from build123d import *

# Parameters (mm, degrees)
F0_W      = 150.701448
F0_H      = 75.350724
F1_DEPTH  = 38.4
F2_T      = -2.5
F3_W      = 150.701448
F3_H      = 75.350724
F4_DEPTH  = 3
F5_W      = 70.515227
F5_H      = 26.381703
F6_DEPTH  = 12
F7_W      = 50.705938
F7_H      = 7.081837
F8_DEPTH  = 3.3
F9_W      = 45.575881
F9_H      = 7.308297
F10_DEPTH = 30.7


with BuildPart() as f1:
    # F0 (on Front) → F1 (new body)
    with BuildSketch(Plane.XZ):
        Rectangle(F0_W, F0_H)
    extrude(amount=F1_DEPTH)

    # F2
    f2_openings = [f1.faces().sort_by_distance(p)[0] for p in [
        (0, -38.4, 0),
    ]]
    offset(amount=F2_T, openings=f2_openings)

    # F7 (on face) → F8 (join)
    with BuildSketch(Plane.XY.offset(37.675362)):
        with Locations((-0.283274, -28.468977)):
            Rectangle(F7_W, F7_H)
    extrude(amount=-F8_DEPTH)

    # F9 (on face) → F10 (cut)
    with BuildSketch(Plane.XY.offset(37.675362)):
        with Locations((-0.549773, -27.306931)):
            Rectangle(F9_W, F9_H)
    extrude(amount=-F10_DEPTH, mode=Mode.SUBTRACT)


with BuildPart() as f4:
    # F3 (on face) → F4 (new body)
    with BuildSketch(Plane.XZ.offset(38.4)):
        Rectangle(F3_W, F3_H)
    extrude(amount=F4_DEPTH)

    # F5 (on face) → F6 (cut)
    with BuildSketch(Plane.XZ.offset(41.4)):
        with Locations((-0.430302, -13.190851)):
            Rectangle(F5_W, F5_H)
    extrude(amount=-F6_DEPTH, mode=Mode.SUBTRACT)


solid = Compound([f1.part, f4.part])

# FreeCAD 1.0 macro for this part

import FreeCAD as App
import Part
import Sketcher
Q = App.Units.Quantity


def faces_at(feature, points):
    """Names of the faces that lie closest to the given points."""
    faces = feature.Shape.Faces
    near = lambda p: min(range(len(faces)), key=lambda i: faces[i].distToShape(Part.Vertex(*p))[0])
    return sorted({f"Face{near(p) + 1}" for p in points})

doc = App.newDocument("Part")
body = doc.addObject("PartDesign::Body", "Body")

# Sketch on XZ plane
sketch1 = doc.addObject("Sketcher::SketchObject", "Sketch")
body.addObject(sketch1)
sketch1.AttachmentSupport = (doc.XZ_Plane, [""])
sketch1.MapMode = "FlatFace"
sketch1.addGeometry(Part.LineSegment(App.Vector(-75.350724, 37.675362, 0), App.Vector(-75.350724, -37.675362, 0)), False)
sketch1.addGeometry(Part.LineSegment(App.Vector(-75.350724, -37.675362, 0), App.Vector(75.350724, -37.675362, 0)), False)
sketch1.addGeometry(Part.LineSegment(App.Vector(75.350724, -37.675362, 0), App.Vector(75.350724, 37.675362, 0)), False)
sketch1.addGeometry(Part.LineSegment(App.Vector(75.350724, 37.675362, 0), App.Vector(-75.350724, 37.675362, 0)), False)
sketch1.addConstraint(Sketcher.Constraint("Coincident", 0, 2, 1, 1))
sketch1.addConstraint(Sketcher.Constraint("Coincident", 1, 2, 2, 1))
sketch1.addConstraint(Sketcher.Constraint("Coincident", 2, 2, 3, 1))
sketch1.addConstraint(Sketcher.Constraint("Coincident", 3, 2, 0, 1))
sketch1.addConstraint(Sketcher.Constraint("Vertical", 0))
sketch1.addConstraint(Sketcher.Constraint("Horizontal", 1))
sketch1.addConstraint(Sketcher.Constraint("Vertical", 2))
sketch1.addConstraint(Sketcher.Constraint("Horizontal", 3))
sketch1.addConstraint(Sketcher.Constraint("Symmetric", 0, 2, 2, 2, -1, 1))
sketch1.addConstraint(Sketcher.Constraint("DistanceX", 1, 1, 1, 2, Q("150.701448 mm")))
sketch1.addConstraint(Sketcher.Constraint("DistanceY", 0, 2, 0, 1, Q("75.350724 mm")))
pad1 = doc.addObject("PartDesign::Pad", "Pad")
body.addObject(pad1)
pad1.Profile = sketch1
pad1.Length = 38.4
doc.recompute()

thickness = doc.addObject("PartDesign::Thickness", "Thickness")
body.addObject(thickness)
thickness.Base = (pad1, faces_at(pad1, [(0, -38.4, 0)]))
thickness.Value = 2.5
thickness.Reversed = True
thickness.Join = "Arc"

# Sketch on XY plane
sketch2 = doc.addObject("Sketcher::SketchObject", "Sketch001")
body.addObject(sketch2)
sketch2.AttachmentSupport = (doc.XY_Plane, [""])
sketch2.MapMode = "FlatFace"
sketch2.AttachmentOffset = App.Placement(App.Vector(0, 0, 37.675362), App.Rotation())
sketch2.addGeometry(Part.LineSegment(App.Vector(-25.636243, -24.928058, 0), App.Vector(-25.636243, -32.009895, 0)), False)
sketch2.addGeometry(Part.LineSegment(App.Vector(-25.636243, -32.009895, 0), App.Vector(25.069695, -32.009895, 0)), False)
sketch2.addGeometry(Part.LineSegment(App.Vector(25.069695, -32.009895, 0), App.Vector(25.069695, -24.928058, 0)), False)
sketch2.addGeometry(Part.LineSegment(App.Vector(25.069695, -24.928058, 0), App.Vector(-25.636243, -24.928058, 0)), False)
sketch2.addConstraint(Sketcher.Constraint("Coincident", 0, 2, 1, 1))
sketch2.addConstraint(Sketcher.Constraint("Coincident", 1, 2, 2, 1))
sketch2.addConstraint(Sketcher.Constraint("Coincident", 2, 2, 3, 1))
sketch2.addConstraint(Sketcher.Constraint("Coincident", 3, 2, 0, 1))
sketch2.addConstraint(Sketcher.Constraint("Vertical", 0))
sketch2.addConstraint(Sketcher.Constraint("Horizontal", 1))
sketch2.addConstraint(Sketcher.Constraint("Vertical", 2))
sketch2.addConstraint(Sketcher.Constraint("Horizontal", 3))
sketch2.addConstraint(Sketcher.Constraint("DistanceX", 1, 1, 1, 2, Q("50.705938 mm")))
sketch2.addConstraint(Sketcher.Constraint("DistanceY", 0, 2, 0, 1, Q("7.081837 mm")))
sketch2.addConstraint(Sketcher.Constraint("DistanceY", 2, 2, -1, 1, Q("24.928058 mm")))
sketch2.addConstraint(Sketcher.Constraint("DistanceX", 0, 2, -1, 1, Q("25.636243 mm")))
pad2 = doc.addObject("PartDesign::Pad", "Pad001")
body.addObject(pad2)
pad2.Profile = sketch2
pad2.Length = 3.3
pad2.Reversed = True

# Sketch on XY plane
sketch3 = doc.addObject("Sketcher::SketchObject", "Sketch002")
body.addObject(sketch3)
sketch3.AttachmentSupport = (doc.XY_Plane, [""])
sketch3.MapMode = "FlatFace"
sketch3.AttachmentOffset = App.Placement(App.Vector(0, 0, 37.675362), App.Rotation())
sketch3.addGeometry(Part.LineSegment(App.Vector(-23.337713, -23.652783, 0), App.Vector(-23.337713, -30.96108, 0)), False)
sketch3.addGeometry(Part.LineSegment(App.Vector(-23.337713, -30.96108, 0), App.Vector(22.238167, -30.96108, 0)), False)
sketch3.addGeometry(Part.LineSegment(App.Vector(22.238167, -30.96108, 0), App.Vector(22.238167, -23.652783, 0)), False)
sketch3.addGeometry(Part.LineSegment(App.Vector(22.238167, -23.652783, 0), App.Vector(-23.337713, -23.652783, 0)), False)
sketch3.addConstraint(Sketcher.Constraint("Coincident", 0, 2, 1, 1))
sketch3.addConstraint(Sketcher.Constraint("Coincident", 1, 2, 2, 1))
sketch3.addConstraint(Sketcher.Constraint("Coincident", 2, 2, 3, 1))
sketch3.addConstraint(Sketcher.Constraint("Coincident", 3, 2, 0, 1))
sketch3.addConstraint(Sketcher.Constraint("Vertical", 0))
sketch3.addConstraint(Sketcher.Constraint("Horizontal", 1))
sketch3.addConstraint(Sketcher.Constraint("Vertical", 2))
sketch3.addConstraint(Sketcher.Constraint("Horizontal", 3))
sketch3.addConstraint(Sketcher.Constraint("DistanceX", 1, 1, 1, 2, Q("45.575881 mm")))
sketch3.addConstraint(Sketcher.Constraint("DistanceY", 0, 2, 0, 1, Q("7.308297 mm")))
sketch3.addConstraint(Sketcher.Constraint("DistanceY", 0, 2, -1, 1, Q("30.96108 mm")))
sketch3.addConstraint(Sketcher.Constraint("DistanceX", 0, 2, -1, 1, Q("23.337713 mm")))
pocket1 = doc.addObject("PartDesign::Pocket", "Pocket")
body.addObject(pocket1)
pocket1.Profile = sketch3
pocket1.Length = 30.7
body2 = doc.addObject("PartDesign::Body", "Body001")

# Sketch on XZ plane
sketch4 = doc.addObject("Sketcher::SketchObject", "Sketch003")
body2.addObject(sketch4)
sketch4.AttachmentSupport = (doc.getObject("XZ_Plane001"), [""])
sketch4.MapMode = "FlatFace"
sketch4.AttachmentOffset = App.Placement(App.Vector(0, 0, 38.4), App.Rotation())
sketch4.addGeometry(Part.LineSegment(App.Vector(-75.350724, 37.675362, 0), App.Vector(-75.350724, -37.675362, 0)), False)
sketch4.addGeometry(Part.LineSegment(App.Vector(-75.350724, -37.675362, 0), App.Vector(75.350724, -37.675362, 0)), False)
sketch4.addGeometry(Part.LineSegment(App.Vector(75.350724, -37.675362, 0), App.Vector(75.350724, 37.675362, 0)), False)
sketch4.addGeometry(Part.LineSegment(App.Vector(75.350724, 37.675362, 0), App.Vector(-75.350724, 37.675362, 0)), False)
sketch4.addConstraint(Sketcher.Constraint("Coincident", 0, 2, 1, 1))
sketch4.addConstraint(Sketcher.Constraint("Coincident", 1, 2, 2, 1))
sketch4.addConstraint(Sketcher.Constraint("Coincident", 2, 2, 3, 1))
sketch4.addConstraint(Sketcher.Constraint("Coincident", 3, 2, 0, 1))
sketch4.addConstraint(Sketcher.Constraint("Vertical", 0))
sketch4.addConstraint(Sketcher.Constraint("Horizontal", 1))
sketch4.addConstraint(Sketcher.Constraint("Vertical", 2))
sketch4.addConstraint(Sketcher.Constraint("Horizontal", 3))
sketch4.addConstraint(Sketcher.Constraint("Symmetric", 0, 2, 2, 2, -1, 1))
sketch4.addConstraint(Sketcher.Constraint("DistanceX", 1, 1, 1, 2, Q("150.701448 mm")))
sketch4.addConstraint(Sketcher.Constraint("DistanceY", 0, 2, 0, 1, Q("75.350724 mm")))
pad3 = doc.addObject("PartDesign::Pad", "Pad002")
body2.addObject(pad3)
pad3.Profile = sketch4
pad3.Length = 3

# Sketch on XZ plane
sketch5 = doc.addObject("Sketcher::SketchObject", "Sketch004")
body2.addObject(sketch5)
sketch5.AttachmentSupport = (doc.getObject("XZ_Plane001"), [""])
sketch5.MapMode = "FlatFace"
sketch5.AttachmentOffset = App.Placement(App.Vector(0, 0, 41.4), App.Rotation())
sketch5.addGeometry(Part.LineSegment(App.Vector(-35.687916, 0, 0), App.Vector(-35.687916, -26.381702, 0)), False)
sketch5.addGeometry(Part.LineSegment(App.Vector(-35.687916, -26.381702, 0), App.Vector(34.827312, -26.381702, 0)), False)
sketch5.addGeometry(Part.LineSegment(App.Vector(34.827312, -26.381702, 0), App.Vector(34.827312, 0, 0)), False)
sketch5.addGeometry(Part.LineSegment(App.Vector(34.827312, 0, 0), App.Vector(-35.687916, 0, 0)), False)
sketch5.addConstraint(Sketcher.Constraint("Coincident", 0, 2, 1, 1))
sketch5.addConstraint(Sketcher.Constraint("Coincident", 1, 2, 2, 1))
sketch5.addConstraint(Sketcher.Constraint("Coincident", 2, 2, 3, 1))
sketch5.addConstraint(Sketcher.Constraint("Coincident", 3, 2, 0, 1))
sketch5.addConstraint(Sketcher.Constraint("Vertical", 0))
sketch5.addConstraint(Sketcher.Constraint("Horizontal", 1))
sketch5.addConstraint(Sketcher.Constraint("Vertical", 2))
sketch5.addConstraint(Sketcher.Constraint("Horizontal", 3))
sketch5.addConstraint(Sketcher.Constraint("PointOnObject", 2, 2, -1))
sketch5.addConstraint(Sketcher.Constraint("DistanceX", 1, 1, 1, 2, Q("70.515227 mm")))
sketch5.addConstraint(Sketcher.Constraint("DistanceY", 0, 2, 0, 1, Q("26.381703 mm")))
sketch5.addConstraint(Sketcher.Constraint("DistanceX", -1, 1, 1, 2, Q("34.827312 mm")))
pocket2 = doc.addObject("PartDesign::Pocket", "Pocket001")
body2.addObject(pocket2)
pocket2.Profile = sketch5
pocket2.Length = 12

doc.recompute()
